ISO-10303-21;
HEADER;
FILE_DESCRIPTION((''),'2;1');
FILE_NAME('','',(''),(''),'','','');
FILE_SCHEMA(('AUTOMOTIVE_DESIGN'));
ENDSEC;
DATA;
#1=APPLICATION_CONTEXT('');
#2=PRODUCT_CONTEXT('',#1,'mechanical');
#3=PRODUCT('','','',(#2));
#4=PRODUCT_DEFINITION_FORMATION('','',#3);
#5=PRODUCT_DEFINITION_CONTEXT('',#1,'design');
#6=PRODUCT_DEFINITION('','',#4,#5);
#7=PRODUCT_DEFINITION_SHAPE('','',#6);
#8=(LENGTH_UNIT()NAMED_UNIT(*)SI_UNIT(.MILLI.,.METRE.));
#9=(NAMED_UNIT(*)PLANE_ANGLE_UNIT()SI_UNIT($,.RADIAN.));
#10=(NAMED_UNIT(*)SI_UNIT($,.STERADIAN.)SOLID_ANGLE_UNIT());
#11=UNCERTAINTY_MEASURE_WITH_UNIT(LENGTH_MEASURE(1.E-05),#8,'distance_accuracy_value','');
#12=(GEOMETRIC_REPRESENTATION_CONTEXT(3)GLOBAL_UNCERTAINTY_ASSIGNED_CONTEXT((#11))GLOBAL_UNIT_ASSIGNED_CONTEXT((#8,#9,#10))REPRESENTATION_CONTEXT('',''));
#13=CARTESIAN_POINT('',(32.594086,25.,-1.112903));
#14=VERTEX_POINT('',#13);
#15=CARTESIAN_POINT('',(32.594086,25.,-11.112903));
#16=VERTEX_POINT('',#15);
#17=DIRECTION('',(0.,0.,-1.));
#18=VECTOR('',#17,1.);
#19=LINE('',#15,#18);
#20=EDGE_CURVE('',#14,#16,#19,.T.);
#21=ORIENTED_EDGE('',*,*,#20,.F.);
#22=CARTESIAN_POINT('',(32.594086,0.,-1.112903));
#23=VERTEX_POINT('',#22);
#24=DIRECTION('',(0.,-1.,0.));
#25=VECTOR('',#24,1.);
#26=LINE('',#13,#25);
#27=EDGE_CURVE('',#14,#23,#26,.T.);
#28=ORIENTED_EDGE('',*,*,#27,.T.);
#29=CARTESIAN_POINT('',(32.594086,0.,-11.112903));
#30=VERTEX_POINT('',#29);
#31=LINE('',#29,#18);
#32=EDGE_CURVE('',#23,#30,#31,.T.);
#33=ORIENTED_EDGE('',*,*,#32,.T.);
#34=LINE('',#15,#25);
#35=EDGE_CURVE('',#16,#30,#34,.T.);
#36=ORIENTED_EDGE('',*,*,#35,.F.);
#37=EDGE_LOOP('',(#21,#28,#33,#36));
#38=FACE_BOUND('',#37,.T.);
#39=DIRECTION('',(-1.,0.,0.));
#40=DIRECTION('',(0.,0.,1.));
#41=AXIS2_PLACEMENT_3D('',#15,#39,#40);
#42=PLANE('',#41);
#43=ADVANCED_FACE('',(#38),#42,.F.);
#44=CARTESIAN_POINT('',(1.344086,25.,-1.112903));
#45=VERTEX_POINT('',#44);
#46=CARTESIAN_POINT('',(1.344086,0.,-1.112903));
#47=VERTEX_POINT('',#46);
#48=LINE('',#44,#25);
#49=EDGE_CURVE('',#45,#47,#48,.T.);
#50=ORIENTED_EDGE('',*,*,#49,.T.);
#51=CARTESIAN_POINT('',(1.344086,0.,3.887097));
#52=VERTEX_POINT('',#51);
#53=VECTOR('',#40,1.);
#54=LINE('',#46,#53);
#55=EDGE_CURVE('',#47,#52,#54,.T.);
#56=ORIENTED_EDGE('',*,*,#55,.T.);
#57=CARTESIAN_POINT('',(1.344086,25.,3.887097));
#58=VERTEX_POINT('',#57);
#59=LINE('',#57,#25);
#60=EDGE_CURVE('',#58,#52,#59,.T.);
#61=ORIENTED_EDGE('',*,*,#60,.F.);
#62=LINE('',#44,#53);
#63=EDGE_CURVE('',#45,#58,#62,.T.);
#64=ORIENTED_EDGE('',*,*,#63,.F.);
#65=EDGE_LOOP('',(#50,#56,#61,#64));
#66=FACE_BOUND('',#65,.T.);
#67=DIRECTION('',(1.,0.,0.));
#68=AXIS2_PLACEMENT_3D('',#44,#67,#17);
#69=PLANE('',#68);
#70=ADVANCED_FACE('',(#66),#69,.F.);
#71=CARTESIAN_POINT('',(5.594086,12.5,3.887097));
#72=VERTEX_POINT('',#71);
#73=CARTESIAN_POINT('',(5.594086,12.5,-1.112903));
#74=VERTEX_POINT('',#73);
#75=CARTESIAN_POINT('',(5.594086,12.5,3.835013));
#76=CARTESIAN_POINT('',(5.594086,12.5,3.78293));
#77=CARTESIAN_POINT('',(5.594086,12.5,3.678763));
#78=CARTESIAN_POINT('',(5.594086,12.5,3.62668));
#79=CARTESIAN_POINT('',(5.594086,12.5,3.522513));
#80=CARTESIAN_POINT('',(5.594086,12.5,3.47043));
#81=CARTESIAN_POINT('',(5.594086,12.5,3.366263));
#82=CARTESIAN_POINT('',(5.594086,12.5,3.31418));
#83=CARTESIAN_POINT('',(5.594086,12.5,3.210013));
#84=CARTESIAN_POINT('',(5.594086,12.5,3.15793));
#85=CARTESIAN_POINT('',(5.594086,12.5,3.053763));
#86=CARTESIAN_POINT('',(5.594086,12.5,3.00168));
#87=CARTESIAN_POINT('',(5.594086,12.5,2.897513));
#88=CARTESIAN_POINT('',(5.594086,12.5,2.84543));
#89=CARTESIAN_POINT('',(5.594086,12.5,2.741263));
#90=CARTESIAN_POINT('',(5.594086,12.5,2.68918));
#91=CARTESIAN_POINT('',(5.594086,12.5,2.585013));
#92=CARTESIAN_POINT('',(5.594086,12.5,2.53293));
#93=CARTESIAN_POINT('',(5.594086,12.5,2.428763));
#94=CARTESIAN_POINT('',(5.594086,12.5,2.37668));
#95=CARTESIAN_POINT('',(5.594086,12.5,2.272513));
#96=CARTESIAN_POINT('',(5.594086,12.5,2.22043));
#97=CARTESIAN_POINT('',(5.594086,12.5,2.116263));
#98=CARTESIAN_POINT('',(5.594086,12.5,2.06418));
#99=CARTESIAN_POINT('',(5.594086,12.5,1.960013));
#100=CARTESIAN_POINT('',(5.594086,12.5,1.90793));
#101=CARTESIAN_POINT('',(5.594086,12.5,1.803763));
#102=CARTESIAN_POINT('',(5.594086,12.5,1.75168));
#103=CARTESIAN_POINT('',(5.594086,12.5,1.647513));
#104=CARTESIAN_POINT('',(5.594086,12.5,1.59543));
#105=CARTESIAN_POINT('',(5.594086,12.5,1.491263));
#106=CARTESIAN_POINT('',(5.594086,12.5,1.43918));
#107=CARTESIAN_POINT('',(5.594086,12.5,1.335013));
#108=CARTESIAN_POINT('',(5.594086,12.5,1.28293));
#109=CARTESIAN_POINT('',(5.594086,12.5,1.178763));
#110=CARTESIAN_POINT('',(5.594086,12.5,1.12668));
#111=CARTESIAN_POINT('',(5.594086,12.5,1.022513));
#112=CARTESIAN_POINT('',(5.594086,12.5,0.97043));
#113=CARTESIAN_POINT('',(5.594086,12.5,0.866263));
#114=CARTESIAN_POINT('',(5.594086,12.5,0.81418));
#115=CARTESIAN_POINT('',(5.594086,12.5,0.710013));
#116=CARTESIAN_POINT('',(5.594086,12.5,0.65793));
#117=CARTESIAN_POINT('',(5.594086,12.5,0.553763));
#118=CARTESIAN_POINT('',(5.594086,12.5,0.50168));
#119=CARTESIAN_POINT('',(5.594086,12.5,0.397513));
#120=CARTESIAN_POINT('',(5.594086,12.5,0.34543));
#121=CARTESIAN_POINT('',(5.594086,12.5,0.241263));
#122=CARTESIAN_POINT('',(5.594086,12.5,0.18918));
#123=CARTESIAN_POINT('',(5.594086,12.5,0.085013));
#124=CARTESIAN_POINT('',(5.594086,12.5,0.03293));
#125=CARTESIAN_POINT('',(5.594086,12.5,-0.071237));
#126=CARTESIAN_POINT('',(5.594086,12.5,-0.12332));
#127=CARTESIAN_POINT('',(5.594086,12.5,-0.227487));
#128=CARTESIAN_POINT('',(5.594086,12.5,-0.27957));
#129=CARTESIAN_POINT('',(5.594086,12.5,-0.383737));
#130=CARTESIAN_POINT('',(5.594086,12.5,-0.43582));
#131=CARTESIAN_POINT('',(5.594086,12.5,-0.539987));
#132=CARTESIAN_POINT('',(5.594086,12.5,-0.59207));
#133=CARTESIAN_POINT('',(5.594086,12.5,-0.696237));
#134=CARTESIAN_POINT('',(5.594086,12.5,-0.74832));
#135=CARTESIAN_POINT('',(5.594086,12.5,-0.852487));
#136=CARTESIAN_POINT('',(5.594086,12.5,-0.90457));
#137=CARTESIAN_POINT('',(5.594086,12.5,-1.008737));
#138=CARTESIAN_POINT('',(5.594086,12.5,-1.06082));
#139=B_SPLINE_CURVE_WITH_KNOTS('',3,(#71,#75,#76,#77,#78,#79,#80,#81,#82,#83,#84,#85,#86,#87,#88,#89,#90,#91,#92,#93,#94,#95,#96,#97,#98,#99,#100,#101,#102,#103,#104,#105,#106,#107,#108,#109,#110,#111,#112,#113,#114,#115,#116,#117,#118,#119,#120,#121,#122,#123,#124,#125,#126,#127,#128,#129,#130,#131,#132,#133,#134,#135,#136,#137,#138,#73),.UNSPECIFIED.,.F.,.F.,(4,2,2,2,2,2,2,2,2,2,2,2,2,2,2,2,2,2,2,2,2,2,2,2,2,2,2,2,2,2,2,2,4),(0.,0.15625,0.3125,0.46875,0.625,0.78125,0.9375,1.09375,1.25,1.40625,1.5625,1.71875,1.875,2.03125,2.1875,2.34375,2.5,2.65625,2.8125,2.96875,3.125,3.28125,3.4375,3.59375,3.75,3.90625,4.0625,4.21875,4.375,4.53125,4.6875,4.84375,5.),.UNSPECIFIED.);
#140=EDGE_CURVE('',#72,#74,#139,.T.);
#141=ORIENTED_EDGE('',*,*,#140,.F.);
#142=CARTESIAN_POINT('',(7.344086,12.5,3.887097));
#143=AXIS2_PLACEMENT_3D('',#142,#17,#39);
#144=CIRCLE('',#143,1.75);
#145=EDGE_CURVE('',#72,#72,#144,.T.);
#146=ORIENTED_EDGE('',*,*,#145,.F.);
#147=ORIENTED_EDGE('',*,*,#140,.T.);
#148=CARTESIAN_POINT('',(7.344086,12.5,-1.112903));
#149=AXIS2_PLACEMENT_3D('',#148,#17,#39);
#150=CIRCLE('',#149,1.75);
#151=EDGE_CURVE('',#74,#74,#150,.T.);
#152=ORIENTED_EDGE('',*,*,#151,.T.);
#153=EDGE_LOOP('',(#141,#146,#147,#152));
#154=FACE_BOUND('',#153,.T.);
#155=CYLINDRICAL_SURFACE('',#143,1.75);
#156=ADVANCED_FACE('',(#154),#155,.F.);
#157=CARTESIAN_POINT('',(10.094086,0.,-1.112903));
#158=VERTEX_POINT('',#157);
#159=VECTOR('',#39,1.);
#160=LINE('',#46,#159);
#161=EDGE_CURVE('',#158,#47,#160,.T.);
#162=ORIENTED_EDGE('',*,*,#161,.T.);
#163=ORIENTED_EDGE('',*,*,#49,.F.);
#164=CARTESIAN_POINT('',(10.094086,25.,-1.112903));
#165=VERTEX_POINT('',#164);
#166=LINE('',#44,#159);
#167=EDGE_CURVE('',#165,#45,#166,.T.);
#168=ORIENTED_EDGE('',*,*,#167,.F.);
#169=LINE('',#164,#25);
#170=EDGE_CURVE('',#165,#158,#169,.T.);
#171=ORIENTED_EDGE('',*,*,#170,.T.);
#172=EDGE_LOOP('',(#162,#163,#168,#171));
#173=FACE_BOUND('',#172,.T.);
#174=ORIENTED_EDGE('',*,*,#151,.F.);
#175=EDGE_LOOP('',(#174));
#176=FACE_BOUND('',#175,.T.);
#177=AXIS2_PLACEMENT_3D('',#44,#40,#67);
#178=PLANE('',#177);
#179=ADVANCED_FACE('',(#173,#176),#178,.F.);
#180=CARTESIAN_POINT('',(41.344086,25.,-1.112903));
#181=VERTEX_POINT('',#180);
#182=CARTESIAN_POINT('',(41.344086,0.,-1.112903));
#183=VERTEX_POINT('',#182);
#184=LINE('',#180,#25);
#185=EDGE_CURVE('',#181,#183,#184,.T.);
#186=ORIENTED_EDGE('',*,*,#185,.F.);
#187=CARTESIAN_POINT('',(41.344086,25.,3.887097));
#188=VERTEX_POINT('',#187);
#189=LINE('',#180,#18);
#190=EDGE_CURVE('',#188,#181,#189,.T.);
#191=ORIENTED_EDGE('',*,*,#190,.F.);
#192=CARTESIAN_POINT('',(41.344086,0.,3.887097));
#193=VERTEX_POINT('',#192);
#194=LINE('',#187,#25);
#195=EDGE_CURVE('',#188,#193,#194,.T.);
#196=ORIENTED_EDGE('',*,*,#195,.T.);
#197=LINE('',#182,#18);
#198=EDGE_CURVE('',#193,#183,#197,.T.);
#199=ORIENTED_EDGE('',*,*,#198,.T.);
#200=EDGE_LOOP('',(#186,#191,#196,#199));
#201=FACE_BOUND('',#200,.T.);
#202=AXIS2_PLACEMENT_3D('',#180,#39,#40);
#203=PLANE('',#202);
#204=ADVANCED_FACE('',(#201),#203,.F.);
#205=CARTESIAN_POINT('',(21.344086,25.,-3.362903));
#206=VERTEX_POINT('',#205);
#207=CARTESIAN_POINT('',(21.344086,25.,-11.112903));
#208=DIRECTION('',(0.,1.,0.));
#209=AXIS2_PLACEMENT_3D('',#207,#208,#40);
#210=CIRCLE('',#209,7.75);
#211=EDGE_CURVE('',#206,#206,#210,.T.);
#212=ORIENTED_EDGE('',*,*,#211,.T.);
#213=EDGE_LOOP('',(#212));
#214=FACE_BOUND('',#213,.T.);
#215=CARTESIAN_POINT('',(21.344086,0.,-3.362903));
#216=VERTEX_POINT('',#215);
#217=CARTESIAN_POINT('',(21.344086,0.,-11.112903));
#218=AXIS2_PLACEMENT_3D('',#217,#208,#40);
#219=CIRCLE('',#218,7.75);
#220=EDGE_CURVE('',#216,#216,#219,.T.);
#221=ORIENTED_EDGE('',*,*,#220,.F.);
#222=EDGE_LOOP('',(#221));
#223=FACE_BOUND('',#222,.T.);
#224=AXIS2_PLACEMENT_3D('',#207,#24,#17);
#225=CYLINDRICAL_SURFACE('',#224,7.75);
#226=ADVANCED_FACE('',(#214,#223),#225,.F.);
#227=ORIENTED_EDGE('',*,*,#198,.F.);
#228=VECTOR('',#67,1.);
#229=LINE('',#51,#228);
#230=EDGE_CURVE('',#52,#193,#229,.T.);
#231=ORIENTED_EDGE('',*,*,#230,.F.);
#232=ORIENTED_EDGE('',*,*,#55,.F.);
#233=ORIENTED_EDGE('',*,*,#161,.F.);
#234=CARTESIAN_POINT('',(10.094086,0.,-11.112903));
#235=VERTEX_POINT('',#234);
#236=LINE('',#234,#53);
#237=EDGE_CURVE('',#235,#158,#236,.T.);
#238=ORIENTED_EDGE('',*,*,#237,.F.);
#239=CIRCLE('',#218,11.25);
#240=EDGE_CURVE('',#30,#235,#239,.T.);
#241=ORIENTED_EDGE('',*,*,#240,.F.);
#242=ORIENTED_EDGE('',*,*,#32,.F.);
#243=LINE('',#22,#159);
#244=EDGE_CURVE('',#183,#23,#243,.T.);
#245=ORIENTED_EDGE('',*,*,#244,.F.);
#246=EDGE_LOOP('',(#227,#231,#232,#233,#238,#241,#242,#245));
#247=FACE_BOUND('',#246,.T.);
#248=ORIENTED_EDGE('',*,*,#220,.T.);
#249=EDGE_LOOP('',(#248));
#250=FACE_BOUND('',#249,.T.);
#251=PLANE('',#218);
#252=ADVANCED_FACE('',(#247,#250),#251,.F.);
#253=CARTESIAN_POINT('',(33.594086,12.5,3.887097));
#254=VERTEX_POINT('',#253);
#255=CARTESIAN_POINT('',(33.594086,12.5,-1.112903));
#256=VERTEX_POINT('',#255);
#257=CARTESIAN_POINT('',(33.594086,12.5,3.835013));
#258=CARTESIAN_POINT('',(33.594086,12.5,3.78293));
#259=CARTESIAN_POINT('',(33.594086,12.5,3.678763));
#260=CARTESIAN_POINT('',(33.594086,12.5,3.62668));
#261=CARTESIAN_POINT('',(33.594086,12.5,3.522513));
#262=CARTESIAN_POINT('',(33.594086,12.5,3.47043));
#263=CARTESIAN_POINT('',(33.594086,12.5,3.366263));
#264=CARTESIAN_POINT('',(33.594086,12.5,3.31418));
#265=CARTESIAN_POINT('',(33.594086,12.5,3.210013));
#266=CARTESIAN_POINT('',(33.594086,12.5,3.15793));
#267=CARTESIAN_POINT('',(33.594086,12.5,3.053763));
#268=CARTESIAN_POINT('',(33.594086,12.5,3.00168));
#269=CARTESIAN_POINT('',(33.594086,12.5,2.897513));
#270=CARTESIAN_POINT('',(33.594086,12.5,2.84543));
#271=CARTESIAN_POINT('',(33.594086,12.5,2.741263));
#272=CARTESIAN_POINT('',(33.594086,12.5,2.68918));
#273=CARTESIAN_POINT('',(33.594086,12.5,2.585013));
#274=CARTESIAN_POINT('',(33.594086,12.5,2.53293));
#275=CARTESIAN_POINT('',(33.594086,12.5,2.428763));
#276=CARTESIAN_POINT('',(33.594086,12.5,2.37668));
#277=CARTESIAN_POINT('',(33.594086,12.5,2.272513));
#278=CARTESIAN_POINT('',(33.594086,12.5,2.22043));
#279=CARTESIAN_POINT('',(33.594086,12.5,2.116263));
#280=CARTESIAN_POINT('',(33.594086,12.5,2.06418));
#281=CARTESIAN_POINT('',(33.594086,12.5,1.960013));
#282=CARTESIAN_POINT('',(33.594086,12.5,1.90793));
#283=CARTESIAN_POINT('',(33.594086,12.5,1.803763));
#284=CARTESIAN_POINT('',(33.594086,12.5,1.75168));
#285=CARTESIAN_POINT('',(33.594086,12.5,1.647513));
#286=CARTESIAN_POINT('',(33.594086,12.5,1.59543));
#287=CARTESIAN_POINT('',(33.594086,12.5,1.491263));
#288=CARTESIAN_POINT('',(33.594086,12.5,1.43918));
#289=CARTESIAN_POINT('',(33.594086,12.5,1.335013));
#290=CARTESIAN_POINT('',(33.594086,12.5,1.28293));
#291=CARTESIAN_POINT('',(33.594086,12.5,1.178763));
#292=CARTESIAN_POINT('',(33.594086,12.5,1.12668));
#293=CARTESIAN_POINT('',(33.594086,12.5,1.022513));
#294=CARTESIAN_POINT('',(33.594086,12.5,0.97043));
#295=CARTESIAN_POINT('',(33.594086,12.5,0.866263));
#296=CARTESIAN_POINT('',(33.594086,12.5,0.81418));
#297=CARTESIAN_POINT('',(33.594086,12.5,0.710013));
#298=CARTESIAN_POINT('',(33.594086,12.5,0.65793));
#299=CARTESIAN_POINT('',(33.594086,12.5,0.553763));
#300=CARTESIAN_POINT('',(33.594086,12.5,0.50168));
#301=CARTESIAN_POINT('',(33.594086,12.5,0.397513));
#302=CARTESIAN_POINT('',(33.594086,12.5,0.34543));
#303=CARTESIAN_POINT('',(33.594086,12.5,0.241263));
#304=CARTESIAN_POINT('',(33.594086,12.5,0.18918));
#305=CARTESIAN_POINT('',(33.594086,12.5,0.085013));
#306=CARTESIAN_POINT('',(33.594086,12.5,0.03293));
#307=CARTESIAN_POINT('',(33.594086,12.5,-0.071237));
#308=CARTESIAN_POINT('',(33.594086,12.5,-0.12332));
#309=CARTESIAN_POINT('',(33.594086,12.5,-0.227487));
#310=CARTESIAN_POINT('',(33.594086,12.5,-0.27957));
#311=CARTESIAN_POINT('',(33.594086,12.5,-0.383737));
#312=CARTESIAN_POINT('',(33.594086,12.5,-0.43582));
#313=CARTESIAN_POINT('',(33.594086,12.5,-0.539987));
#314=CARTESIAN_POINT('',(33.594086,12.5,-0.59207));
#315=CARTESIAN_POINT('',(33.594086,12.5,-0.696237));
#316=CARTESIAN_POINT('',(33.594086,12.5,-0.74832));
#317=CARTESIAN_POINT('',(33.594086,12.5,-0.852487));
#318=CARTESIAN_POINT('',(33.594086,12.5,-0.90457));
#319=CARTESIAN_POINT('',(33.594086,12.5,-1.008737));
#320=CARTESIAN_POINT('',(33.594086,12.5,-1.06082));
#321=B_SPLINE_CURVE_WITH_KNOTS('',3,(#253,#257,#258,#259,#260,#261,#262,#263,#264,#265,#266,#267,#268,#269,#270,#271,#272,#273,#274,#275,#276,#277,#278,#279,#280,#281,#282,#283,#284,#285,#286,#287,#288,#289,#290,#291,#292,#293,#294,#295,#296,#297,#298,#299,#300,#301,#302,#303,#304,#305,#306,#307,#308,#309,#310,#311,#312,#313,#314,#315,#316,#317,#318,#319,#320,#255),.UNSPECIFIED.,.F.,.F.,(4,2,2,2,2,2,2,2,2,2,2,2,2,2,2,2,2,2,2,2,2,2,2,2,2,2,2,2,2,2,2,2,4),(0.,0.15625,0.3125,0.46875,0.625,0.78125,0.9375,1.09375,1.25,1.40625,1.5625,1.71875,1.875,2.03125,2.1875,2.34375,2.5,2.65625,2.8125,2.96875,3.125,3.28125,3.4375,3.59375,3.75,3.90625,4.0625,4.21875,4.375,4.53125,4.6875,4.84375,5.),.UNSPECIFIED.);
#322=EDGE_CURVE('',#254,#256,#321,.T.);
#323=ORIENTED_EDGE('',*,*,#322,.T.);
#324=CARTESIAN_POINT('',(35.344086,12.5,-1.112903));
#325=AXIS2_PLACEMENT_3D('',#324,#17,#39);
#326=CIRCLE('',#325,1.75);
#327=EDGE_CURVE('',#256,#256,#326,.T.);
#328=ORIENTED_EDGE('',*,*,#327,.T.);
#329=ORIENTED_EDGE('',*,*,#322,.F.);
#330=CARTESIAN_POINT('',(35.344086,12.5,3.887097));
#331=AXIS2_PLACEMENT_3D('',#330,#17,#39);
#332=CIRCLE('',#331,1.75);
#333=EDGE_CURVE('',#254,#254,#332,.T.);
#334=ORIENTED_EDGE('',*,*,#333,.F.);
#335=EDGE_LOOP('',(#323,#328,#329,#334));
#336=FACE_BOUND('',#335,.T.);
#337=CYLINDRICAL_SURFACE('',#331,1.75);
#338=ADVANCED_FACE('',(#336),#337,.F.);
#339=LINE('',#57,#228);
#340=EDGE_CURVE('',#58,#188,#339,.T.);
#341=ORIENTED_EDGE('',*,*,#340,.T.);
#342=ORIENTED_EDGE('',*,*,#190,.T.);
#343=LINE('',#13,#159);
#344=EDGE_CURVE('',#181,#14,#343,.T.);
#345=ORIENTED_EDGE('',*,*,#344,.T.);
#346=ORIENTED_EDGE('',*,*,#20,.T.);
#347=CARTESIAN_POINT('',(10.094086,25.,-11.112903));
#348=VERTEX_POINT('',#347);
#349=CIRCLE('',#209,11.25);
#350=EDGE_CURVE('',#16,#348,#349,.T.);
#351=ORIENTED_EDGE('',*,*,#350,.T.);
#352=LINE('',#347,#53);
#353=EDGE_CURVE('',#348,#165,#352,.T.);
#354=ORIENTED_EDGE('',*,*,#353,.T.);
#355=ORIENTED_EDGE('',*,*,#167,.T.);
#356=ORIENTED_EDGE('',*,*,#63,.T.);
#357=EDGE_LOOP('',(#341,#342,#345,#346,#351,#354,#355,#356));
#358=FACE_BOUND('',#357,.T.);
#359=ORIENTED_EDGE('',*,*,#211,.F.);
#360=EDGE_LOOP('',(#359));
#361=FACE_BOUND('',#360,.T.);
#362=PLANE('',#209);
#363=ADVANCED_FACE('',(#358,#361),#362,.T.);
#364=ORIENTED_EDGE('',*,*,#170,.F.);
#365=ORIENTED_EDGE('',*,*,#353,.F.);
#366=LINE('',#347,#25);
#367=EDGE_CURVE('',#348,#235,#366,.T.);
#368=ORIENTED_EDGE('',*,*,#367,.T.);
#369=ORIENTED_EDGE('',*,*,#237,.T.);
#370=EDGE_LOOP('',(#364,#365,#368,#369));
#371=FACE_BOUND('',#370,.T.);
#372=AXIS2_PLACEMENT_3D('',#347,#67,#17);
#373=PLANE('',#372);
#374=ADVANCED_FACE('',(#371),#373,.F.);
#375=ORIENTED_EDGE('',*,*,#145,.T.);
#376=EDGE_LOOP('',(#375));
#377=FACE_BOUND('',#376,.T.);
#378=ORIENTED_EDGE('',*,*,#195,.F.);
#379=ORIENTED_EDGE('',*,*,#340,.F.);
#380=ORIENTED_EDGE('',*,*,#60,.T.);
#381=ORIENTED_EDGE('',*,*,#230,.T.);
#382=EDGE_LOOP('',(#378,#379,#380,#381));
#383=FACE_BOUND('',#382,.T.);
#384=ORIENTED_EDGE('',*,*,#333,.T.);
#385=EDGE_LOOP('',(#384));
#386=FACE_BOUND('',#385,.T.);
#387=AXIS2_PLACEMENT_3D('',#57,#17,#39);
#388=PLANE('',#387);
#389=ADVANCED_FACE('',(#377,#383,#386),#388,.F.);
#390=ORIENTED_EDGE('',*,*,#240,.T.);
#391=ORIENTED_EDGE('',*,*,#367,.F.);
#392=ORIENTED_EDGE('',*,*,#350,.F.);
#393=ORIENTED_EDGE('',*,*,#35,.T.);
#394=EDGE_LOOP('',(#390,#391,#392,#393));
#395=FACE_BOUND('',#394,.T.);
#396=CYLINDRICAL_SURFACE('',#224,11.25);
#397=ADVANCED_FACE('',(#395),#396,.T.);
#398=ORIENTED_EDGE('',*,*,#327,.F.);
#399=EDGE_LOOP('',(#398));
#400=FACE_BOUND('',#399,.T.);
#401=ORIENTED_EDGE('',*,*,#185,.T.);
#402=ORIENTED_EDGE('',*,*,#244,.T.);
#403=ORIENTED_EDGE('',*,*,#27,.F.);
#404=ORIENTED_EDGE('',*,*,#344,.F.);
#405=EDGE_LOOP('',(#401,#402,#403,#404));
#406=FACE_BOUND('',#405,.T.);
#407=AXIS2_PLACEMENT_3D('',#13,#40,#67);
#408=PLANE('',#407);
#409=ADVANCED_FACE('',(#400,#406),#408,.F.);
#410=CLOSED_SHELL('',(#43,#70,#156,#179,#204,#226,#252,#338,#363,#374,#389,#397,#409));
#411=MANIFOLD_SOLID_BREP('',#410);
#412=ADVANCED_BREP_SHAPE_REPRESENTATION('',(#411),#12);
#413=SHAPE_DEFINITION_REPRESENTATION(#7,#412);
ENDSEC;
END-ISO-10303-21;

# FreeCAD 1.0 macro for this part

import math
import FreeCAD as App
import Part
import Sketcher

doc = App.newDocument("Part")
body = doc.addObject("PartDesign::Body", "Body")

sketch1 = body.newObject("Sketcher::SketchObject", "Sketch")
sketch1.AttachmentSupport = (doc.getObject("XZ_Plane"), [""])
sketch1.MapMode = "FlatFace"
sketch1.addGeometry([
    Part.LineSegment(App.Vector(10, -1, 0), App.Vector(1, -1, 0)),
    Part.LineSegment(App.Vector(1, -1, 0), App.Vector(1, 4, 0)),
    Part.LineSegment(App.Vector(1, 4, 0), App.Vector(41, 4, 0)),
    Part.LineSegment(App.Vector(41, 4, 0), App.Vector(41, -1, 0)),
    Part.LineSegment(App.Vector(41, -1, 0), App.Vector(33, -1, 0)),
    Part.LineSegment(App.Vector(33, -1, 0), App.Vector(33, -11, 0)),
    Part.ArcOfCircle(Part.Circle(App.Vector(21, -11, 0), App.Vector(0, 0, 1), 11), math.radians(180), math.radians(360)),
    Part.LineSegment(App.Vector(10, -11, 0), App.Vector(10, -1, 0)),
    Part.Circle(App.Vector(21, -11, 0), App.Vector(0, 0, 1), 8),
], False)
sketch1.addConstraint([
    Sketcher.Constraint("Coincident", 0, 2, 1, 1),
    Sketcher.Constraint("Coincident", 1, 2, 2, 1),
    Sketcher.Constraint("Coincident", 2, 2, 3, 1),
    Sketcher.Constraint("Coincident", 3, 2, 4, 1),
    Sketcher.Constraint("Coincident", 4, 2, 5, 1),
    Sketcher.Constraint("Tangent", 5, 2, 6, 2),
    Sketcher.Constraint("Tangent", 6, 1, 7, 1),
    Sketcher.Constraint("Coincident", 7, 2, 0, 1),
    Sketcher.Constraint("Horizontal", 0),
    Sketcher.Constraint("Vertical", 1),
    Sketcher.Constraint("Horizontal", 2),
    Sketcher.Constraint("Vertical", 3),
    Sketcher.Constraint("Horizontal", 4),
    Sketcher.Constraint("Vertical", 5),
    Sketcher.Constraint("Vertical", 7),
    Sketcher.Constraint("Coincident", 8, 3, 6, 3),
    Sketcher.Constraint("Horizontal", 0, 2, 3, 2),
    Sketcher.Constraint("Equal", 0, 4),
    Sketcher.Constraint("Diameter", 8, 15.5),
    Sketcher.Constraint("DistanceX", 2, 1, 2, 2, 40.0),
    Sketcher.Constraint("DistanceY", 1, 1, 1, 2, 5.0),
    Sketcher.Constraint("DistanceY", 5, 2, 5, 1, 10.0),
    Sketcher.Constraint("Radius", 6, 11.25),
    Sketcher.Constraint("DistanceX", -1, 1, 6, 3, 21.344086),
    Sketcher.Constraint("DistanceY", 6, 3, -1, 1, 11.112903),
])
pad1 = body.newObject("PartDesign::Pad", "Pad")
pad1.Profile = sketch1
pad1.Length = 25
pad1.Reversed = True

sketch2 = body.newObject("Sketcher::SketchObject", "Sketch001")
sketch2.AttachmentSupport = (doc.getObject("XY_Plane"), [""])
sketch2.MapMode = "FlatFace"
sketch2.AttachmentOffset = App.Placement(App.Vector(0, 0, -1.112903), App.Rotation())
sketch2.addGeometry([
    Part.Circle(App.Vector(35.3, 12.5, 0), App.Vector(0, 0, 1), 1.8),
    Part.Circle(App.Vector(7.3, 12.5, 0), App.Vector(0, 0, 1), 1.8),
], False)
sketch2.addConstraint([
    Sketcher.Constraint("Equal", 0, 1),
    Sketcher.Constraint("Horizontal", 0, 3, 1, 3),
    Sketcher.Constraint("Diameter", 0, 3.5),
    Sketcher.Constraint("DistanceX", 1, 3, 0, 3, 28.0),
    Sketcher.Constraint("DistanceY", -1, 1, 0, 3, 12.5),
    Sketcher.Constraint("DistanceX", -1, 1, 0, 3, 35.344086),
])
pocket1 = body.newObject("PartDesign::Pocket", "Pocket")
pocket1.Profile = sketch2
pocket1.Type = "ThroughAll"
pocket1.Reversed = True

doc.recompute()
